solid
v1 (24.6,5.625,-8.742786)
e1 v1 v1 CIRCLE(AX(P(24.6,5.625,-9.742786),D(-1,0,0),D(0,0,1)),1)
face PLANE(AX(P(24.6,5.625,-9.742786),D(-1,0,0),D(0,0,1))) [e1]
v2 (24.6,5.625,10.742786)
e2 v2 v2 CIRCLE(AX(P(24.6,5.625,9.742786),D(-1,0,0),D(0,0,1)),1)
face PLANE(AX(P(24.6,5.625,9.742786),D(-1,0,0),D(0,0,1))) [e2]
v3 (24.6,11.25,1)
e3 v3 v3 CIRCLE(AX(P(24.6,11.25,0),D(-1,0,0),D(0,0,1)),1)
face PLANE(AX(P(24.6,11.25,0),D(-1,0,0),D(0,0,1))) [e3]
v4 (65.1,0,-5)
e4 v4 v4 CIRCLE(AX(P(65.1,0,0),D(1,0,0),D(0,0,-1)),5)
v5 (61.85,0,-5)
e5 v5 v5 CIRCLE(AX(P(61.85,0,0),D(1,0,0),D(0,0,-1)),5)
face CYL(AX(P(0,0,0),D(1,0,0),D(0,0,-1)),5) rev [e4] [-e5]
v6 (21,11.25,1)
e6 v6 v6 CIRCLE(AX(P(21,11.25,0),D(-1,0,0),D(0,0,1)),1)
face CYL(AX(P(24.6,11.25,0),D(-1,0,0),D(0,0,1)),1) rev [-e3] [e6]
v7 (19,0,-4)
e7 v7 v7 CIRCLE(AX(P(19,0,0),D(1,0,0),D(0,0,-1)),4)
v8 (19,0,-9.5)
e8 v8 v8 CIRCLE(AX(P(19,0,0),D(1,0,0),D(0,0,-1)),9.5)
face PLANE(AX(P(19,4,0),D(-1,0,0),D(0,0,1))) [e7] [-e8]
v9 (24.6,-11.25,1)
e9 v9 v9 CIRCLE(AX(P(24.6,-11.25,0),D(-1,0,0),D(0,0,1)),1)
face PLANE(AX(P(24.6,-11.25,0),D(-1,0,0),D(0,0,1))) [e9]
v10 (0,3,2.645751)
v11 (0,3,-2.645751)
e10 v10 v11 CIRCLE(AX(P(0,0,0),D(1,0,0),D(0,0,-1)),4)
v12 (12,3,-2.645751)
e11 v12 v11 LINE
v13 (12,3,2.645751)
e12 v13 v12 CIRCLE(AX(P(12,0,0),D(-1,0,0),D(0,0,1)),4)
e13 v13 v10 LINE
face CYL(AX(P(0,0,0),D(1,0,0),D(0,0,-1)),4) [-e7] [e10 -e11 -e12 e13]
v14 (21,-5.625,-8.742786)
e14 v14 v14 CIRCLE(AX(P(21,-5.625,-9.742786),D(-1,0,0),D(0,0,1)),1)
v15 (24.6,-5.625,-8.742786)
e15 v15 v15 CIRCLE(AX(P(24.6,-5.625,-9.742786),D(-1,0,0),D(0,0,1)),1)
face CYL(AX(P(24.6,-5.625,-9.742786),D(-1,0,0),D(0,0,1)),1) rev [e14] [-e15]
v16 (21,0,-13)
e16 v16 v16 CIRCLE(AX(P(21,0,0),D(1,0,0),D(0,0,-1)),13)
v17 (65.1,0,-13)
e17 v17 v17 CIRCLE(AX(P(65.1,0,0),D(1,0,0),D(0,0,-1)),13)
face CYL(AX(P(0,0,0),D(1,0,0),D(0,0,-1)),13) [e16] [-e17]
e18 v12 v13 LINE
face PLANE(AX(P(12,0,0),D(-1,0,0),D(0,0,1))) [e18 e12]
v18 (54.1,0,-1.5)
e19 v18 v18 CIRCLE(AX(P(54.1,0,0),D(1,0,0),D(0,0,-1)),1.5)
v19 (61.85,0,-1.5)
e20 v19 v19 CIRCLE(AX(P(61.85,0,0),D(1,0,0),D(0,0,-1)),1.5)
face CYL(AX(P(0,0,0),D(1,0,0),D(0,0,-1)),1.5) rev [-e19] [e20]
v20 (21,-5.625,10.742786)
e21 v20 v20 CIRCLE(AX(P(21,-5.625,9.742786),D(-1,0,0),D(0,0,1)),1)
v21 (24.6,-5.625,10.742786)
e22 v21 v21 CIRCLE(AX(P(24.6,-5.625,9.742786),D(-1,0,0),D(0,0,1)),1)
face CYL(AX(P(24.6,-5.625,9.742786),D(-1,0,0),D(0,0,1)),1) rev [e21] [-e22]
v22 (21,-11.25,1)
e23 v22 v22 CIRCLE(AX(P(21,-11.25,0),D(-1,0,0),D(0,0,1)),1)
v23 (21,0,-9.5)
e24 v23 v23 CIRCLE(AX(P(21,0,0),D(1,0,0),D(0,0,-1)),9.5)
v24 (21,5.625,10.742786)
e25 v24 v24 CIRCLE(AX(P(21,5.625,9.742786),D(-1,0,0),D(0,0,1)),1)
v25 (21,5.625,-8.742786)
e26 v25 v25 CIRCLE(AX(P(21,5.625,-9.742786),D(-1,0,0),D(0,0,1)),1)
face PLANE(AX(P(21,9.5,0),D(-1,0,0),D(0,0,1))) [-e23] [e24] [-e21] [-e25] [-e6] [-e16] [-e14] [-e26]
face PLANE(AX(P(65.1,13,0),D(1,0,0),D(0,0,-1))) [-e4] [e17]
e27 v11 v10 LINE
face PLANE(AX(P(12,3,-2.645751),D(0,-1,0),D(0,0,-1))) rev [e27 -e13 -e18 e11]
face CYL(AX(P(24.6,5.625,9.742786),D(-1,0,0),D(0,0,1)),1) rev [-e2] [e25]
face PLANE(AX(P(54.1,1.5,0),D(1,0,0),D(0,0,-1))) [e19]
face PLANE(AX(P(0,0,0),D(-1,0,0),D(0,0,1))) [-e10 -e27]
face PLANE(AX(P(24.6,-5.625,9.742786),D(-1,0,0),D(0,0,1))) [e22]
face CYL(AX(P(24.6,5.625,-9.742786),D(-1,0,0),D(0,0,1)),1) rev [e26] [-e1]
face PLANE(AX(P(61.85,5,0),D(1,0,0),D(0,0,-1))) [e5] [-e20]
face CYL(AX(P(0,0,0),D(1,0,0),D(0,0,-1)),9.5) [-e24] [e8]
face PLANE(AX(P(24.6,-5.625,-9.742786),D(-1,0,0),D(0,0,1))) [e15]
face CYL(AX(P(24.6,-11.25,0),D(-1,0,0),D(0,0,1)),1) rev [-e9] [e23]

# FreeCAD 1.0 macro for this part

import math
import FreeCAD as App
import Part
import Sketcher

V = App.Vector

doc = App.newDocument("Part")
params = doc.addObject("Spreadsheet::Sheet", "Params")
for row, (alias, value) in enumerate([
    ("sketch1_width", "2 mm"),
    ("sketch1_width2", "19 mm"),
    ("sketch1_height", "4 mm"),
    ("sketch1_height2", "8 mm"),
    ("sketch1_width3", "54.1 mm"),
    ("revolution_angle", "360 deg"),
    ("sketch2_diameter", "2 mm"),
    ("pocket1_length", "3.6 mm"),
    ("sketch3_radius", "4 mm"),
    ("pocket2_length", "12 mm"),
], start=1):
    params.set(f"A{row}", alias)
    params.set(f"B{row}", "=" + value)
    params.setAlias(f"B{row}", alias)

body = doc.addObject("PartDesign::Body", "Body")

# Sketch on XY plane
sketch1 = body.newObject("Sketcher::SketchObject", "Sketch")
sketch1.AttachmentSupport = (doc.getObject("XY_Plane"), [""])
sketch1.MapMode = "FlatFace"
sketch1.addGeometry(Part.LineSegment(V(0, 4, 0), V(0, 0, 0)), False)
sketch1.addGeometry(Part.LineSegment(V(0, 0, 0), V(54.1, 0, 0)), False)
sketch1.addGeometry(Part.LineSegment(V(54.1, 0, 0), V(54.1, 1.5, 0)), False)
sketch1.addGeometry(Part.LineSegment(V(54.1, 1.5, 0), V(61.9, 1.5, 0)), False)
sketch1.addGeometry(Part.LineSegment(V(61.9, 1.5, 0), V(61.9, 5, 0)), False)
sketch1.addGeometry(Part.LineSegment(V(61.9, 5, 0), V(65.1, 5, 0)), False)
sketch1.addGeometry(Part.LineSegment(V(65.1, 5, 0), V(65.1, 13, 0)), False)
sketch1.addGeometry(Part.LineSegment(V(65.1, 13, 0), V(21, 13, 0)), False)
sketch1.addGeometry(Part.LineSegment(V(21, 13, 0), V(21, 9.5, 0)), False)
sketch1.addGeometry(Part.LineSegment(V(21, 9.5, 0), V(19, 9.5, 0)), False)
sketch1.addGeometry(Part.LineSegment(V(19, 9.5, 0), V(19, 4, 0)), False)
sketch1.addGeometry(Part.LineSegment(V(19, 4, 0), V(0, 4, 0)), False)
sketch1.addConstraint(Sketcher.Constraint("Coincident", 0, 2, 1, 1))
sketch1.addConstraint(Sketcher.Constraint("Coincident", 1, 2, 2, 1))
sketch1.addConstraint(Sketcher.Constraint("Coincident", 2, 2, 3, 1))
sketch1.addConstraint(Sketcher.Constraint("Coincident", 3, 2, 4, 1))
sketch1.addConstraint(Sketcher.Constraint("Coincident", 4, 2, 5, 1))
sketch1.addConstraint(Sketcher.Constraint("Coincident", 5, 2, 6, 1))
sketch1.addConstraint(Sketcher.Constraint("Coincident", 6, 2, 7, 1))
sketch1.addConstraint(Sketcher.Constraint("Coincident", 7, 2, 8, 1))
sketch1.addConstraint(Sketcher.Constraint("Coincident", 8, 2, 9, 1))
sketch1.addConstraint(Sketcher.Constraint("Coincident", 9, 2, 10, 1))
sketch1.addConstraint(Sketcher.Constraint("Coincident", 10, 2, 11, 1))
sketch1.addConstraint(Sketcher.Constraint("Coincident", 11, 2, 0, 1))
sketch1.addConstraint(Sketcher.Constraint("Vertical", 0))
sketch1.addConstraint(Sketcher.Constraint("Horizontal", 1))
sketch1.addConstraint(Sketcher.Constraint("Vertical", 2))
sketch1.addConstraint(Sketcher.Constraint("Horizontal", 3))
sketch1.addConstraint(Sketcher.Constraint("Vertical", 4))
sketch1.addConstraint(Sketcher.Constraint("Horizontal", 5))
sketch1.addConstraint(Sketcher.Constraint("Vertical", 6))
sketch1.addConstraint(Sketcher.Constraint("Horizontal", 7))
sketch1.addConstraint(Sketcher.Constraint("Vertical", 8))
sketch1.addConstraint(Sketcher.Constraint("Horizontal", 9))
sketch1.addConstraint(Sketcher.Constraint("Vertical", 10))
sketch1.addConstraint(Sketcher.Constraint("Horizontal", 11))
sketch1.addConstraint(Sketcher.Constraint("Coincident", 0, 2, -1, 1))
sketch1.addConstraint(Sketcher.Constraint("Equal", 4, 8))
sketch1.addConstraint(Sketcher.Constraint("DistanceX", 9, 2, 9, 1, 2.0))
sketch1.addConstraint(Sketcher.Constraint("DistanceX", 11, 2, 11, 1, 19.0))
sketch1.addConstraint(Sketcher.Constraint("DistanceY", 0, 2, 0, 1, 4.0))
sketch1.addConstraint(Sketcher.Constraint("DistanceY", 6, 1, 6, 2, 8.0))
sketch1.addConstraint(Sketcher.Constraint("DistanceX", 1, 1, 1, 2, 54.1))
sketch1.addConstraint(Sketcher.Constraint("DistanceX", 7, 2, 7, 1, 44.1))
sketch1.addConstraint(Sketcher.Constraint("DistanceY", 2, 1, 2, 2, 1.5))
sketch1.addConstraint(Sketcher.Constraint("DistanceY", 4, 1, 4, 2, 3.5))
sketch1.addConstraint(Sketcher.Constraint("DistanceX", 3, 1, 3, 2, 7.75))
sketch1.setExpression("Constraints[26]", "Params.sketch1_width")
sketch1.setExpression("Constraints[27]", "Params.sketch1_width2")
sketch1.setExpression("Constraints[28]", "Params.sketch1_height")
sketch1.setExpression("Constraints[29]", "Params.sketch1_height2")
sketch1.setExpression("Constraints[30]", "Params.sketch1_width3")
revolution = body.newObject("PartDesign::Revolution", "Revolution")
revolution.Profile = sketch1
revolution.ReferenceAxis = (sketch1, ["H_Axis"])
revolution.setExpression("Angle", "Params.revolution_angle")

# Sketch on YZ plane
sketch2 = body.newObject("Sketcher::SketchObject", "Sketch001")
sketch2.AttachmentSupport = (doc.getObject("YZ_Plane"), [""])
sketch2.MapMode = "FlatFace"
sketch2.AttachmentOffset = App.Placement(V(0, 0, 21), App.Rotation())
sketch2.addGeometry(Part.Circle(V(11.2, 0, 0), V(0, 0, 1), 1), False)
sketch2.addGeometry(Part.Circle(V(5.6, 9.7, 0), V(0, 0, 1), 1), False)
sketch2.addGeometry(Part.Circle(V(-5.6, 9.7, 0), V(0, 0, 1), 1), False)
sketch2.addGeometry(Part.Circle(V(-11.2, 0, 0), V(0, 0, 1), 1), False)
sketch2.addGeometry(Part.Circle(V(-5.6, -9.7, 0), V(0, 0, 1), 1), False)
sketch2.addGeometry(Part.Circle(V(5.6, -9.7, 0), V(0, 0, 1), 1), False)
sketch2.addConstraint(Sketcher.Constraint("Equal", 0, 1))
sketch2.addConstraint(Sketcher.Constraint("Equal", 1, 2))
sketch2.addConstraint(Sketcher.Constraint("Equal", 2, 3))
sketch2.addConstraint(Sketcher.Constraint("Equal", 3, 4))
sketch2.addConstraint(Sketcher.Constraint("Equal", 4, 5))
sketch2.addConstraint(Sketcher.Constraint("Symmetric", 0, 3, 3, 3, -1, 1))
sketch2.addConstraint(Sketcher.Constraint("Symmetric", 1, 3, 4, 3, -1, 1))
sketch2.addConstraint(Sketcher.Constraint("Symmetric", 2, 3, 5, 3, -1, 1))
sketch2.addConstraint(Sketcher.Constraint("Symmetric", 1, 3, 2, 3, -2))
sketch2.addConstraint(Sketcher.Constraint("PointOnObject", 0, 3, -1))
sketch2.addConstraint(Sketcher.Constraint("Diameter", 0, 2.0))
sketch2.addConstraint(Sketcher.Constraint("DistanceX", 3, 3, 0, 3, 22.5))
sketch2.addConstraint(Sketcher.Constraint("DistanceX", 2, 3, 1, 3, 11.25))
sketch2.addConstraint(Sketcher.Constraint("DistanceY", 4, 3, 2, 3, 19.485572))
sketch2.setExpression("Constraints[10]", "Params.sketch2_diameter")
pocket1 = body.newObject("PartDesign::Pocket", "Pocket")
pocket1.Profile = sketch2
pocket1.setExpression("Length", "Params.pocket1_length")
pocket1.Reversed = True

# Sketch on YZ plane
sketch3 = body.newObject("Sketcher::SketchObject", "Sketch002")
sketch3.AttachmentSupport = (doc.getObject("YZ_Plane"), [""])
sketch3.MapMode = "FlatFace"
sketch3.AttachmentOffset = App.Placement(V(0, 0, 12), App.Rotation())
sketch3.addGeometry(Part.LineSegment(V(3, -2.6, 0), V(3, 2.6, 0)), False)
sketch3.addGeometry(Part.ArcOfCircle(Part.Circle(V(0, 0, 0), V(0, 0, 1), 4), math.radians(-41), math.radians(41)), False)
sketch3.addConstraint(Sketcher.Constraint("Coincident", 0, 1, 1, 1))
sketch3.addConstraint(Sketcher.Constraint("Coincident", 1, 2, 0, 2))
sketch3.addConstraint(Sketcher.Constraint("Vertical", 0))
sketch3.addConstraint(Sketcher.Constraint("Coincident", 1, 3, -1, 1))
sketch3.addConstraint(Sketcher.Constraint("Radius", 1, 4.0))
sketch3.addConstraint(Sketcher.Constraint("DistanceX", -1, 1, 0, 1, 3.0))
sketch3.setExpression("Constraints[4]", "Params.sketch3_radius")
pocket2 = body.newObject("PartDesign::Pocket", "Pocket001")
pocket2.Profile = sketch3
pocket2.setExpression("Length", "Params.pocket2_length")

doc.recompute()
